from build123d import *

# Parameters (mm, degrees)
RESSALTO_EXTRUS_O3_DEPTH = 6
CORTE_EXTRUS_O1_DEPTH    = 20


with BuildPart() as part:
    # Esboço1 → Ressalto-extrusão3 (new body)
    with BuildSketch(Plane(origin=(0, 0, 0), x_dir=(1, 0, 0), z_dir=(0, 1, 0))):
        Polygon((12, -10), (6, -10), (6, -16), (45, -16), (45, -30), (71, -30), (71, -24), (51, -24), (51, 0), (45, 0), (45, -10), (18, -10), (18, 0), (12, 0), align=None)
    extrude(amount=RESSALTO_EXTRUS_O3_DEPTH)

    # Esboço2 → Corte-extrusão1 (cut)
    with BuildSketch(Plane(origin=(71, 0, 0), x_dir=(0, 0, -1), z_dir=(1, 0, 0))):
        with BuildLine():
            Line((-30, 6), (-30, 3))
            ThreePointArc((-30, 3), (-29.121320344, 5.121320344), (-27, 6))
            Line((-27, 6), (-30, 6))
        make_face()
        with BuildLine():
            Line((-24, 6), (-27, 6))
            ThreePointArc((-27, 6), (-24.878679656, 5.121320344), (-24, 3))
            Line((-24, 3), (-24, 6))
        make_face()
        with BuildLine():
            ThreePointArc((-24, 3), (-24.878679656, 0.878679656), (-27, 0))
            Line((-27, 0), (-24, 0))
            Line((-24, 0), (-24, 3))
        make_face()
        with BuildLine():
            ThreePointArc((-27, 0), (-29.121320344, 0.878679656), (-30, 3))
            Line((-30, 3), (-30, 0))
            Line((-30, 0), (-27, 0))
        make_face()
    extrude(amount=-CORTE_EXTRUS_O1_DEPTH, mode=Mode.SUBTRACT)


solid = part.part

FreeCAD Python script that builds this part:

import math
import FreeCAD as App
import Part
import Sketcher

V = App.Vector
Q = App.Units.Quantity


def add_polygon(sketch, points):
    """Adds a closed chain of lines whose ends are joined by coincident constraints."""
    first, n = sketch.GeometryCount, len(points)
    for a, b in zip(points, points[1:] + points[:1]):
        sketch.addGeometry(Part.LineSegment(App.Vector(*a, 0), App.Vector(*b, 0)), False)
    for i in range(n):
        sketch.addConstraint(Sketcher.Constraint("Coincident", first + i, 2, first + (i + 1) % n, 1))

doc = App.newDocument("Part")
body = doc.addObject("PartDesign::Body", "Body")

# Sketch on XZ plane
sketch1 = body.newObject("Sketcher::SketchObject", "Sketch")
sketch1.AttachmentSupport = (doc.getObject("XZ_Plane"), [""])
sketch1.MapMode = "FlatFace"
add_polygon(sketch1, [(12, 10), (6, 10), (6, 16), (45, 16), (45, 30), (71, 30), (71, 24), (51, 24), (51, 0), (45, 0), (45, 10), (18, 10), (18, 0), (12, 0)])  # lines 0-13
sketch1.addConstraint([
    Sketcher.Constraint("Horizontal", 0),
    Sketcher.Constraint("Vertical", 1),
    Sketcher.Constraint("Horizontal", 2),
    Sketcher.Constraint("Vertical", 3),
    Sketcher.Constraint("Horizontal", 4),
    Sketcher.Constraint("Vertical", 5),
    Sketcher.Constraint("Horizontal", 6),
    Sketcher.Constraint("Vertical", 7),
    Sketcher.Constraint("Horizontal", 8),
    Sketcher.Constraint("Vertical", 9),
    Sketcher.Constraint("Horizontal", 10),
    Sketcher.Constraint("Vertical", 11),
    Sketcher.Constraint("Horizontal", 12),
    Sketcher.Constraint("Vertical", 13),
    Sketcher.Constraint("PointOnObject", 7, 2, -1),
    Sketcher.Constraint("PointOnObject", 11, 2, -1),
    Sketcher.Constraint("Horizontal", 0, 2, 9, 2),
    Sketcher.Constraint("Vertical", 3, 2, 8, 2),
    Sketcher.Constraint("Equal", 0, 8),
    Sketcher.Constraint("Equal", 8, 12),
    Sketcher.Constraint("Equal", 12, 1),
    Sketcher.Constraint("Equal", 1, 5),
    Sketcher.Constraint("DistanceX", 0, 2, 0, 1, Q("6 mm")),
    Sketcher.Constraint("DistanceX", 2, 1, 2, 2, Q("39 mm")),
    Sketcher.Constraint("DistanceX", 4, 1, 4, 2, Q("26 mm")),
    Sketcher.Constraint("DistanceY", 3, 1, 3, 2, Q("14 mm")),
    Sketcher.Constraint("DistanceY", 7, 2, 7, 1, Q("24 mm")),
    Sketcher.Constraint("DistanceX", -1, 1, 0, 2, Q("6 mm")),
])
pad1 = body.newObject("PartDesign::Pad", "Pad")
pad1.Profile = sketch1
pad1.Length = 6
pad1.Reversed = True

# Sketch on YZ plane
sketch2 = body.newObject("Sketcher::SketchObject", "Sketch001")
sketch2.AttachmentSupport = (doc.getObject("YZ_Plane"), [""])
sketch2.MapMode = "FlatFace"
sketch2.AttachmentOffset = App.Placement(V(0, 0, 71), App.Rotation())
sketch2.addGeometry([
    Part.LineSegment(V(6, 30, 0), V(3, 30, 0)),  # 0
    Part.ArcOfCircle(Part.Circle(V(3, 27, 0), V(0, 0, 1), 3), math.radians(0), math.radians(90)),  # 1
    Part.LineSegment(V(6, 27, 0), V(6, 30, 0)),  # 2
    Part.LineSegment(V(6, 24, 0), V(6, 27, 0)),  # 3
    Part.ArcOfCircle(Part.Circle(V(3, 27, 0), V(0, 0, 1), 3), math.radians(-90), math.radians(0)),  # 4
    Part.LineSegment(V(3, 24, 0), V(6, 24, 0)),  # 5
    Part.ArcOfCircle(Part.Circle(V(3, 27, 0), V(0, 0, 1), 3), math.radians(180), math.radians(270)),  # 6
    Part.LineSegment(V(0, 27, 0), V(0, 24, 0)),  # 7
    Part.LineSegment(V(0, 24, 0), V(3, 24, 0)),  # 8
    Part.ArcOfCircle(Part.Circle(V(3, 27, 0), V(0, 0, 1), 3), math.radians(90), math.radians(180)),  # 9
    Part.LineSegment(V(3, 30, 0), V(0, 30, 0)),  # 10
    Part.LineSegment(V(0, 30, 0), V(0, 27, 0)),  # 11
], False)
sketch2.addConstraint([
    Sketcher.Constraint("Tangent", 0, 2, 1, 2),
    Sketcher.Constraint("Tangent", 1, 1, 2, 1),
    Sketcher.Constraint("Coincident", 2, 2, 0, 1),
    Sketcher.Constraint("Tangent", 3, 2, 4, 2),
    Sketcher.Constraint("Tangent", 4, 1, 5, 1),
    Sketcher.Constraint("Coincident", 5, 2, 3, 1),
    Sketcher.Constraint("Tangent", 6, 1, 7, 1),
    Sketcher.Constraint("Coincident", 7, 2, 8, 1),
    Sketcher.Constraint("Tangent", 8, 2, 6, 2),
    Sketcher.Constraint("Tangent", 9, 1, 10, 1),
    Sketcher.Constraint("Coincident", 10, 2, 11, 1),
    Sketcher.Constraint("Tangent", 11, 2, 9, 2),
    Sketcher.Constraint("Horizontal", 0),
    Sketcher.Constraint("Vertical", 2),
    Sketcher.Constraint("Vertical", 3),
    Sketcher.Constraint("Horizontal", 5),
    Sketcher.Constraint("Vertical", 7),
    Sketcher.Constraint("Horizontal", 8),
    Sketcher.Constraint("Horizontal", 10),
    Sketcher.Constraint("Vertical", 11),
    Sketcher.Constraint("Coincident", 4, 3, 1, 3),
    Sketcher.Constraint("Coincident", 6, 3, 1, 3),
    Sketcher.Constraint("Coincident", 9, 3, 1, 3),
    Sketcher.Constraint("Equal", 1, 4),
    Sketcher.Constraint("Equal", 4, 6),
    Sketcher.Constraint("Equal", 6, 9),
    Sketcher.Constraint("PointOnObject", 6, 1, -2),
    Sketcher.Constraint("Radius", 1, Q("3 mm")),
    Sketcher.Constraint("DistanceY", -1, 1, 1, 3, Q("27 mm")),
])
pocket1 = body.newObject("PartDesign::Pocket", "Pocket")
pocket1.Profile = sketch2
pocket1.Length = 20

doc.recompute()
